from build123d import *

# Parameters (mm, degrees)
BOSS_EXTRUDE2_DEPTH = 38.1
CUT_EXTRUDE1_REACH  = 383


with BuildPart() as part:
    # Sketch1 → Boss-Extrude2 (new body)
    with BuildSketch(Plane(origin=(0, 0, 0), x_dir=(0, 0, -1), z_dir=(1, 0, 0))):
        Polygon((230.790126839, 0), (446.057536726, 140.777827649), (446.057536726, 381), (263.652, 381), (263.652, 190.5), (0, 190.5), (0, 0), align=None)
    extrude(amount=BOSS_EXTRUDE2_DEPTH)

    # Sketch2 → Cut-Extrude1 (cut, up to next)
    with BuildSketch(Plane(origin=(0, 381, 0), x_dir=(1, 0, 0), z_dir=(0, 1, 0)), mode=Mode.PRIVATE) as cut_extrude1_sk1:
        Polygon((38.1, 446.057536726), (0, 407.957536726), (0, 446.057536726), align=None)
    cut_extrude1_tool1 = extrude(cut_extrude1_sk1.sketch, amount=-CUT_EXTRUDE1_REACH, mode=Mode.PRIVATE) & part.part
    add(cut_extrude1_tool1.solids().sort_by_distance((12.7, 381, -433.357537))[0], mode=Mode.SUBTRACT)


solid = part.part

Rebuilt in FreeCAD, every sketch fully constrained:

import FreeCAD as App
import Part
import Sketcher
from FreeCAD import Vector
Q = App.Units.Quantity

doc = App.newDocument("Part")
body = doc.addObject("PartDesign::Body", "Body")

# Sketch on YZ plane
sketch1 = body.newObject("Sketcher::SketchObject", "Sketch")
sketch1.AttachmentSupport = (doc.getObject("YZ_Plane"), [""])
sketch1.MapMode = "FlatFace"
sketch1.addGeometry([
    Part.LineSegment(Vector(0, -231, 0), Vector(141, -446, 0)),  # 0
    Part.LineSegment(Vector(141, -446, 0), Vector(381, -446, 0)),  # 1
    Part.LineSegment(Vector(381, -446, 0), Vector(381, -264, 0)),  # 2
    Part.LineSegment(Vector(381, -264, 0), Vector(190, -264, 0)),  # 3
    Part.LineSegment(Vector(190, -264, 0), Vector(190, 0, 0)),  # 4
    Part.LineSegment(Vector(190, 0, 0), Vector(0, 0, 0)),  # 5
    Part.LineSegment(Vector(0, 0, 0), Vector(0, -231, 0)),  # 6
], False)
sketch1.addConstraint([
    Sketcher.Constraint("Coincident", 0, 2, 1, 1),
    Sketcher.Constraint("Coincident", 1, 2, 2, 1),
    Sketcher.Constraint("Coincident", 2, 2, 3, 1),
    Sketcher.Constraint("Coincident", 3, 2, 4, 1),
    Sketcher.Constraint("Coincident", 4, 2, 5, 1),
    Sketcher.Constraint("Coincident", 5, 2, 6, 1),
    Sketcher.Constraint("Coincident", 6, 2, 0, 1),
    Sketcher.Constraint("Horizontal", 1),
    Sketcher.Constraint("Vertical", 2),
    Sketcher.Constraint("Horizontal", 3),
    Sketcher.Constraint("Vertical", 4),
    Sketcher.Constraint("Horizontal", 5),
    Sketcher.Constraint("Vertical", 6),
    Sketcher.Constraint("Coincident", 5, 2, -1, 1),
    Sketcher.Constraint("Equal", 3, 5),
    Sketcher.Constraint("DistanceX", 3, 2, 3, 1, Q("7.5 in")),
    Sketcher.Constraint("DistanceY", 4, 1, 4, 2, Q("10.38 in")),
    Sketcher.Constraint("Distance", 0, 257.212858),
    Sketcher.Constraint("DistanceX", 1, 1, 1, 2, 240.222172),
    Sketcher.Constraint("DistanceY", 2, 1, 2, 2, 182.405537),
])
pad1 = body.newObject("PartDesign::Pad", "Pad")
pad1.Profile = sketch1
pad1.Length = Q("1.5 in")

# Sketch on XZ plane
sketch2 = body.newObject("Sketcher::SketchObject", "Sketch001")
sketch2.AttachmentSupport = (doc.getObject("XZ_Plane"), [""])
sketch2.MapMode = "FlatFace"
sketch2.AttachmentOffset = App.Placement(Vector(0, 0, -15 * 25.4), App.Rotation())
sketch2.addGeometry([
    Part.LineSegment(Vector(0, -408, 0), Vector(38, -446, 0)),
    Part.LineSegment(Vector(38, -446, 0), Vector(0, -446, 0)),
    Part.LineSegment(Vector(0, -446, 0), Vector(0, -408, 0)),
], False)
sketch2.addConstraint([
    Sketcher.Constraint("Coincident", 0, 2, 1, 1),
    Sketcher.Constraint("Coincident", 1, 2, 2, 1),
    Sketcher.Constraint("Coincident", 2, 2, 0, 1),
    Sketcher.Constraint("Horizontal", 1),
    Sketcher.Constraint("Vertical", 2),
    Sketcher.Constraint("PointOnObject", 1, 2, -2),
    Sketcher.Constraint("Equal", 1, 2),
    Sketcher.Constraint("DistanceX", 1, 2, 1, 1, Q("1.5 in")),
    Sketcher.Constraint("DistanceY", 0, 2, -1, 1, 446.057537),
])
pocket1 = body.newObject("PartDesign::Pocket", "Pocket")
pocket1.Profile = sketch2
pocket1.Type = "UpToFirst"
pocket1.Reversed = True

doc.recompute()
